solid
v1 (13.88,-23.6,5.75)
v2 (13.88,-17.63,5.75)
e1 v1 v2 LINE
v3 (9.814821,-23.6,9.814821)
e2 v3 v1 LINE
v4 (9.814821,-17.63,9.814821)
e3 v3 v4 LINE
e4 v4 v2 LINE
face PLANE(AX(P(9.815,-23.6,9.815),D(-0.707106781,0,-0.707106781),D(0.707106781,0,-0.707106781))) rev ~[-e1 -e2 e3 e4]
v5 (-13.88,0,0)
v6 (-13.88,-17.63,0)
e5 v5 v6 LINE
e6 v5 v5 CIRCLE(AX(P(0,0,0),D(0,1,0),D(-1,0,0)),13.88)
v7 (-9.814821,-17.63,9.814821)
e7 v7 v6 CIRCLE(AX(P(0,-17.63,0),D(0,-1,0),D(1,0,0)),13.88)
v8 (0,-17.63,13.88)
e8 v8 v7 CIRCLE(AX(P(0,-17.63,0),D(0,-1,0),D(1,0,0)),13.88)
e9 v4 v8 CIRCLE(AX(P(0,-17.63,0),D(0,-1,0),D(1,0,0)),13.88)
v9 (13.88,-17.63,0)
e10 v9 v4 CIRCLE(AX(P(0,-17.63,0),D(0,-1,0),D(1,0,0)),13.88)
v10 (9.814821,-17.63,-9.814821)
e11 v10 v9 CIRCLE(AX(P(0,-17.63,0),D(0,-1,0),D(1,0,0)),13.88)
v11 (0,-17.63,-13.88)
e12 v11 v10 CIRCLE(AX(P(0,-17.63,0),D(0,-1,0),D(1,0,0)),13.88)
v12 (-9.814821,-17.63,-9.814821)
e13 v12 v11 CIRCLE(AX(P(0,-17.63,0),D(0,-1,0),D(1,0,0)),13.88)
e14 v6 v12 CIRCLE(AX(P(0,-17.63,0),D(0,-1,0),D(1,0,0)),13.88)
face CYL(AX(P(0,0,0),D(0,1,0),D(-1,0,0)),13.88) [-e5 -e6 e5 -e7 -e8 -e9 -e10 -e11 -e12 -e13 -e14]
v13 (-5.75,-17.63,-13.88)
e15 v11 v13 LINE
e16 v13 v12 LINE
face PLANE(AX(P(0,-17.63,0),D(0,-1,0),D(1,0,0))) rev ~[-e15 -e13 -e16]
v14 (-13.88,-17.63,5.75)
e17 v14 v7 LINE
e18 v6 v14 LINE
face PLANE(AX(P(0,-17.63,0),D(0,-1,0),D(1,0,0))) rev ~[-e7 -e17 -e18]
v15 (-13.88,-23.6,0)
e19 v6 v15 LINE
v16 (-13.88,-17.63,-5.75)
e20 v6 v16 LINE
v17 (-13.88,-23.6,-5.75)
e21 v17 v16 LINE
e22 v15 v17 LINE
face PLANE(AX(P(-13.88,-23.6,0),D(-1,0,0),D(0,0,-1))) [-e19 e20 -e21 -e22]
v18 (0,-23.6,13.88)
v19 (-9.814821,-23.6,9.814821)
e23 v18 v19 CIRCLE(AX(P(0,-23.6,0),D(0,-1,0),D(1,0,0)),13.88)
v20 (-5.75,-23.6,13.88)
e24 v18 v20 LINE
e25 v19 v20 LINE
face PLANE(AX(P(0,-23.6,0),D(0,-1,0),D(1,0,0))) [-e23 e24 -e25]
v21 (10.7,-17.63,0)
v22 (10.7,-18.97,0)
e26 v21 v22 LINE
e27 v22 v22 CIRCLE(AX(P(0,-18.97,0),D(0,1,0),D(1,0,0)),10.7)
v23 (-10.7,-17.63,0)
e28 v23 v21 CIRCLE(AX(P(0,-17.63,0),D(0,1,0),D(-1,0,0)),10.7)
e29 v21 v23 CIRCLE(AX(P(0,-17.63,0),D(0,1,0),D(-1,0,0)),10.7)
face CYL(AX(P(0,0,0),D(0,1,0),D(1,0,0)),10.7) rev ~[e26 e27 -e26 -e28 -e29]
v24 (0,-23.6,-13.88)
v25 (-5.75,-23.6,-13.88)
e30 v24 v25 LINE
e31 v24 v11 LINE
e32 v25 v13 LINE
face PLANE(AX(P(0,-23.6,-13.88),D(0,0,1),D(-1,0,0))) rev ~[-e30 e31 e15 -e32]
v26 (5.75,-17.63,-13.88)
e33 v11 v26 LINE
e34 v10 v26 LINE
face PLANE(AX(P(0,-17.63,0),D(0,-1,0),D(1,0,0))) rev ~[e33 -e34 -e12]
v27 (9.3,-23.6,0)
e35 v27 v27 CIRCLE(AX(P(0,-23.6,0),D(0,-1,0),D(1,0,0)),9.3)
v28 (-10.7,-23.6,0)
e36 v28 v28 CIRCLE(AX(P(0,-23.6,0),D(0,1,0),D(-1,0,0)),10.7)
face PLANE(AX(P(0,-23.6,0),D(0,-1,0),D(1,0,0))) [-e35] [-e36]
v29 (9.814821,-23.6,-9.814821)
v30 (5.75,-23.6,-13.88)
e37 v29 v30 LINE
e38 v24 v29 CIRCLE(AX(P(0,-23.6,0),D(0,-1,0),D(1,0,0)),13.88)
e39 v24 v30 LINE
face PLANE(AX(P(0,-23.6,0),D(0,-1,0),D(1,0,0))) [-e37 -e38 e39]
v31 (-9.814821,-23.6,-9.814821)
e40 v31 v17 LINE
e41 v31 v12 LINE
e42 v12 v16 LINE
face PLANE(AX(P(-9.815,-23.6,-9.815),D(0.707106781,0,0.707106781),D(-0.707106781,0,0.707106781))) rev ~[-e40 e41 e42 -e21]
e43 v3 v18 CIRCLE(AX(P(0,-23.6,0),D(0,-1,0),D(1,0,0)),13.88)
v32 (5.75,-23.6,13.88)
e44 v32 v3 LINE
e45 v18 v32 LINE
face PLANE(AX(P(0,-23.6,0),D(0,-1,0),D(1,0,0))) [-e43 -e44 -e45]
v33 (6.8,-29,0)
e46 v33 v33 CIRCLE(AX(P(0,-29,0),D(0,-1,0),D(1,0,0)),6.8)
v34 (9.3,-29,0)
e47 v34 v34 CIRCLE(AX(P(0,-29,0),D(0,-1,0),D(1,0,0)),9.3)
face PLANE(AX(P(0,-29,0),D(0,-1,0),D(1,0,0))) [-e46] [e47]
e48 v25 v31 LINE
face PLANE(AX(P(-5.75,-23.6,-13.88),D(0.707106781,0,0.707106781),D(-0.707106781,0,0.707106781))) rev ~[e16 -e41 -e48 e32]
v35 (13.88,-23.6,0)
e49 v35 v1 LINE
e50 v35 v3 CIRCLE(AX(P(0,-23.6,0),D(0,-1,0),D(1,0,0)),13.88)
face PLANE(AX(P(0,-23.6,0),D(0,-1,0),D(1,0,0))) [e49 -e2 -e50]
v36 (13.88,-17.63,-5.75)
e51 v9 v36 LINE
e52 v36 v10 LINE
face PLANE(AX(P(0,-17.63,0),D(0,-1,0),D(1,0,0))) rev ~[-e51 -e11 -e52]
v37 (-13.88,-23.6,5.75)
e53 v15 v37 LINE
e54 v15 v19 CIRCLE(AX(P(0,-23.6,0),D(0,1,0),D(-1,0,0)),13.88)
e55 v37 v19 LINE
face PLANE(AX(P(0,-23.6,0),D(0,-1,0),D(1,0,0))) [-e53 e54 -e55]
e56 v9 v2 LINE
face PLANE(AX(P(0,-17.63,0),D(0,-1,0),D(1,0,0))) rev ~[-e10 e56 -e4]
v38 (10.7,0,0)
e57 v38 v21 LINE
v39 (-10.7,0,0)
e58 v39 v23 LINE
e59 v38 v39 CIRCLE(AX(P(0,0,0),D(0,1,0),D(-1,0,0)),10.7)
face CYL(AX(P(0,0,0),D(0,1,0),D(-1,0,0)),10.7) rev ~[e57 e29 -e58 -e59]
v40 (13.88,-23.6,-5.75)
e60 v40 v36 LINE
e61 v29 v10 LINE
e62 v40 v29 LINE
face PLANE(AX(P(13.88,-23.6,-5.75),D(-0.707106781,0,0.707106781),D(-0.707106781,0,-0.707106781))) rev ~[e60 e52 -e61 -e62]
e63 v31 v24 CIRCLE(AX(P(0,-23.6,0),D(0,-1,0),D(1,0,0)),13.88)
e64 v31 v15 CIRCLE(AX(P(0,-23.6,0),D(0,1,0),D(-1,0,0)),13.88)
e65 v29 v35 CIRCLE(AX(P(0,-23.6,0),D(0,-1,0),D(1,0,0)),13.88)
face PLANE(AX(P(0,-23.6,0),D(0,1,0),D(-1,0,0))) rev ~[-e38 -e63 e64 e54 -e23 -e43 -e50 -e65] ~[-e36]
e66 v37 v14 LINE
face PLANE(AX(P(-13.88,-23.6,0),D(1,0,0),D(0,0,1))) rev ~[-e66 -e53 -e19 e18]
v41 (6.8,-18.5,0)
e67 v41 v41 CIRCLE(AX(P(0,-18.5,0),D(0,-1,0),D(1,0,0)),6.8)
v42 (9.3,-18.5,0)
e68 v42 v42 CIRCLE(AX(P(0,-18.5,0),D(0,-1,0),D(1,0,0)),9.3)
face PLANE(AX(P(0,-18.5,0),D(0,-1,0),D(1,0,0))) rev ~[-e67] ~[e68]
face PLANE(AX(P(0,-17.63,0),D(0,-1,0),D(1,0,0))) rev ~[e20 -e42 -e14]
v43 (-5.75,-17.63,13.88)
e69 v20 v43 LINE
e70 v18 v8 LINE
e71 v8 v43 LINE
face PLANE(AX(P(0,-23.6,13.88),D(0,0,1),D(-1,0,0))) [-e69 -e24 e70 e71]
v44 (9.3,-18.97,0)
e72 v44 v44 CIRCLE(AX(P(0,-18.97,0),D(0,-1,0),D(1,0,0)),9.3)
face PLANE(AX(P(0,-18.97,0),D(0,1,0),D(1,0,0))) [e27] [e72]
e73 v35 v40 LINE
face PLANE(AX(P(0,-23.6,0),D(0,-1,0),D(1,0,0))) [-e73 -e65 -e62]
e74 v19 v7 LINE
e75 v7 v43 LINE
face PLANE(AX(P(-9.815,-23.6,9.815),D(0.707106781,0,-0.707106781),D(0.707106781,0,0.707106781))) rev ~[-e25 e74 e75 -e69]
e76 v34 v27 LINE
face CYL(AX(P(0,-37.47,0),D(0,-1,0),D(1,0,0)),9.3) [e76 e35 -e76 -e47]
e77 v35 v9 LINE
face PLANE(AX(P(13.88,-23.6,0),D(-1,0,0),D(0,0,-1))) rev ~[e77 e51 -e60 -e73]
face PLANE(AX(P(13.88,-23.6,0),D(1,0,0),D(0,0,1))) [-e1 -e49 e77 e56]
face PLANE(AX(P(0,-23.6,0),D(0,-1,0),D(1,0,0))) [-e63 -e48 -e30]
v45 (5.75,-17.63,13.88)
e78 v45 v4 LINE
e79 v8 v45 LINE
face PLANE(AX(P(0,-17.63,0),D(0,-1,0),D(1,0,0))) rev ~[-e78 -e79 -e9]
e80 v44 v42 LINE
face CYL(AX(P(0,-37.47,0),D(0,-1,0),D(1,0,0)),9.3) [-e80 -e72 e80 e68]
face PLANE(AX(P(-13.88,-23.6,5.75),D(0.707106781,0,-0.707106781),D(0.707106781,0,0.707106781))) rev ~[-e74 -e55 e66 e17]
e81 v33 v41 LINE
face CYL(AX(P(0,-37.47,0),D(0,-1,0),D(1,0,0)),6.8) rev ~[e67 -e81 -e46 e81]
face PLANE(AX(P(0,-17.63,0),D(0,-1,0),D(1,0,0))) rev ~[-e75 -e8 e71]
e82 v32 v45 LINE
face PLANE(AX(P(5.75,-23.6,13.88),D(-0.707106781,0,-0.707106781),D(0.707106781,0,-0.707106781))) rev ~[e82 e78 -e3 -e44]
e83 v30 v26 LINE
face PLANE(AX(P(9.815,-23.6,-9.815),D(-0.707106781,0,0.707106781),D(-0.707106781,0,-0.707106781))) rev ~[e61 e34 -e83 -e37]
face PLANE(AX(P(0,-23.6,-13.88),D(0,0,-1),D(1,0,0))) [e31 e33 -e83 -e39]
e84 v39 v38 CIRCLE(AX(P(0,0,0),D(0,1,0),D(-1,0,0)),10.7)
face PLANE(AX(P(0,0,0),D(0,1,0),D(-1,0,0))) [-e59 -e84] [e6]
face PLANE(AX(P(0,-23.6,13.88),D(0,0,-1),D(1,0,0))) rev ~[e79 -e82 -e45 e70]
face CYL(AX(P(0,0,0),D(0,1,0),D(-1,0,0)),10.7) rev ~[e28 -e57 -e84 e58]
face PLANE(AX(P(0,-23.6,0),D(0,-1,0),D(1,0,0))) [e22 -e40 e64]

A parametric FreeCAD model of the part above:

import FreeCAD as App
import Part
import Sketcher
from FreeCAD import Vector
Q = App.Units.Quantity

doc = App.newDocument("Part")
params = doc.addObject("Spreadsheet::Sheet", "Params")
for row, (alias, value) in enumerate([
    ("sketch1_diameter", "21.4 mm"),
    ("sketch1_diameter2", "27.76 mm"),
    ("pad1_length", "23.6 mm"),
    ("pad2_length", "5.97 mm"),
    ("sketch3_diameter", "13.6 mm"),
    ("pad3_length", "18.97 mm"),
    ("sketch4_diameter", "21.4 mm"),
    ("pocket1_length", "18.97 mm"),
    ("sketch5_diameter", "18.6 mm"),
    ("sketch5_diameter2", "13.4 mm"),
    ("pad4_length", "18.97 mm"),
    ("sketch6_diameter", "13.6 mm"),
    ("pocket2_length", "18.97 mm"),
    ("sketch7_diameter", "18.6 mm"),
    ("pocket3_length", "8.47 mm"),
], start=1):
    params.set(f"A{row}", alias)
    params.set(f"B{row}", "=" + value)
    params.setAlias(f"B{row}", alias)

body = doc.addObject("PartDesign::Body", "Body")

sketch1 = doc.addObject("Sketcher::SketchObject", "Sketch")
body.addObject(sketch1)
sketch1.AttachmentSupport = (doc.XZ_Plane, [""])
sketch1.MapMode = "FlatFace"
sketch1.addGeometry(Part.Circle(Vector(0, 0, 0), Vector(0, 0, 1), 14), False)
sketch1.addGeometry(Part.Circle(Vector(0, 0, 0), Vector(0, 0, 1), 11), False)
sketch1.addConstraint(Sketcher.Constraint("Coincident", 0, 3, -1, 1))
sketch1.addConstraint(Sketcher.Constraint("Coincident", 1, 3, -1, 1))
sketch1.addConstraint(Sketcher.Constraint("Diameter", 1, Q("21.4 mm")))
sketch1.addConstraint(Sketcher.Constraint("Diameter", 0, Q("27.76 mm")))
sketch1.setExpression("Constraints[2]", "Params.sketch1_diameter")
sketch1.setExpression("Constraints[3]", "Params.sketch1_diameter2")
pad1 = doc.addObject("PartDesign::Pad", "Pad")
body.addObject(pad1)
pad1.Profile = sketch1
pad1.setExpression("Length", "Params.pad1_length")

sketch2 = doc.addObject("Sketcher::SketchObject", "Sketch001")
body.addObject(sketch2)
sketch2.AttachmentSupport = (doc.XZ_Plane, [""])
sketch2.MapMode = "FlatFace"
sketch2.AttachmentOffset = App.Placement(Vector(0, 0, 23.6), App.Rotation())
sketch2.addGeometry(Part.LineSegment(Vector(14, -6, 0), Vector(14, 6, 0)), False)
sketch2.addGeometry(Part.LineSegment(Vector(14, 6, 0), Vector(6, 14, 0)), False)
sketch2.addGeometry(Part.LineSegment(Vector(6, 14, 0), Vector(-6, 14, 0)), False)
sketch2.addGeometry(Part.LineSegment(Vector(-6, 14, 0), Vector(-14, 6, 0)), False)
sketch2.addGeometry(Part.LineSegment(Vector(-14, 6, 0), Vector(-14, -6, 0)), False)
sketch2.addGeometry(Part.LineSegment(Vector(-14, -6, 0), Vector(-6, -14, 0)), False)
sketch2.addGeometry(Part.LineSegment(Vector(-6, -14, 0), Vector(6, -14, 0)), False)
sketch2.addGeometry(Part.LineSegment(Vector(6, -14, 0), Vector(14, -6, 0)), False)
sketch2.addConstraint(Sketcher.Constraint("Coincident", 0, 2, 1, 1))
sketch2.addConstraint(Sketcher.Constraint("Coincident", 1, 2, 2, 1))
sketch2.addConstraint(Sketcher.Constraint("Coincident", 2, 2, 3, 1))
sketch2.addConstraint(Sketcher.Constraint("Coincident", 3, 2, 4, 1))
sketch2.addConstraint(Sketcher.Constraint("Coincident", 4, 2, 5, 1))
sketch2.addConstraint(Sketcher.Constraint("Coincident", 5, 2, 6, 1))
sketch2.addConstraint(Sketcher.Constraint("Coincident", 6, 2, 7, 1))
sketch2.addConstraint(Sketcher.Constraint("Coincident", 7, 2, 0, 1))
sketch2.addConstraint(Sketcher.Constraint("Vertical", 0))
sketch2.addConstraint(Sketcher.Constraint("Horizontal", 2))
sketch2.addConstraint(Sketcher.Constraint("Vertical", 4))
sketch2.addConstraint(Sketcher.Constraint("Horizontal", 6))
sketch2.addConstraint(Sketcher.Constraint("Symmetric", 0, 2, 4, 2, -1, 1))
sketch2.addConstraint(Sketcher.Constraint("Symmetric", 1, 2, 5, 2, -1, 1))
sketch2.addConstraint(Sketcher.Constraint("Perpendicular", 1, 3))
sketch2.addConstraint(Sketcher.Constraint("Perpendicular", 5, 7))
sketch2.addConstraint(Sketcher.Constraint("Horizontal", 0, 2, 3, 2))
sketch2.addConstraint(Sketcher.Constraint("Horizontal", 4, 2, 7, 2))
sketch2.addConstraint(Sketcher.Constraint("Vertical", 2, 2, 5, 2))
sketch2.addConstraint(Sketcher.Constraint("Equal", 6, 0))
sketch2.addConstraint(Sketcher.Constraint("DistanceY", -1, 1, 0, 2, Q("5.75 mm")))
sketch2.addConstraint(Sketcher.Constraint("DistanceX", -1, 1, 0, 2, Q("13.88 mm")))
pad2 = doc.addObject("PartDesign::Pad", "Pad001")
body.addObject(pad2)
pad2.Profile = sketch2
pad2.setExpression("Length", "Params.pad2_length")
pad2.Reversed = True

sketch3 = doc.addObject("Sketcher::SketchObject", "Sketch002")
body.addObject(sketch3)
sketch3.AttachmentSupport = (doc.XZ_Plane, [""])
sketch3.MapMode = "FlatFace"
sketch3.AttachmentOffset = App.Placement(Vector(0, 0, 18.5), App.Rotation())
sketch3.addGeometry(Part.Circle(Vector(0, 0, 0), Vector(0, 0, 1), 7), False)
sketch3.addConstraint(Sketcher.Constraint("Coincident", 0, 3, -1, 1))
sketch3.addConstraint(Sketcher.Constraint("Diameter", 0, Q("13.6 mm")))
sketch3.setExpression("Constraints[1]", "Params.sketch3_diameter")
pad3 = doc.addObject("PartDesign::Pad", "Pad002")
body.addObject(pad3)
pad3.Profile = sketch3
pad3.setExpression("Length", "Params.pad3_length")

sketch4 = doc.addObject("Sketcher::SketchObject", "Sketch003")
body.addObject(sketch4)
sketch4.AttachmentSupport = (doc.XZ_Plane, [""])
sketch4.MapMode = "FlatFace"
sketch4.addGeometry(Part.Circle(Vector(0, 0, 0), Vector(0, 0, 1), 11), False)
sketch4.addConstraint(Sketcher.Constraint("Coincident", 0, 3, -1, 1))
sketch4.addConstraint(Sketcher.Constraint("Diameter", 0, Q("21.4 mm")))
sketch4.setExpression("Constraints[1]", "Params.sketch4_diameter")
pocket1 = doc.addObject("PartDesign::Pocket", "Pocket")
body.addObject(pocket1)
pocket1.Profile = sketch4
pocket1.setExpression("Length", "Params.pocket1_length")
pocket1.Reversed = True

sketch5 = doc.addObject("Sketcher::SketchObject", "Sketch004")
body.addObject(sketch5)
sketch5.AttachmentSupport = (doc.XZ_Plane, [""])
sketch5.MapMode = "FlatFace"
sketch5.AttachmentOffset = App.Placement(Vector(0, 0, 37.47), App.Rotation())
sketch5.addGeometry(Part.Circle(Vector(0, 0, 0), Vector(0, 0, 1), 9), False)
sketch5.addGeometry(Part.Circle(Vector(0, 0, 0), Vector(0, 0, 1), 7), False)
sketch5.addConstraint(Sketcher.Constraint("Coincident", 0, 3, -1, 1))
sketch5.addConstraint(Sketcher.Constraint("Coincident", 1, 3, -1, 1))
sketch5.addConstraint(Sketcher.Constraint("Diameter", 0, Q("18.6 mm")))
sketch5.addConstraint(Sketcher.Constraint("Diameter", 1, Q("13.4 mm")))
sketch5.setExpression("Constraints[2]", "Params.sketch5_diameter")
sketch5.setExpression("Constraints[3]", "Params.sketch5_diameter2")
pad4 = doc.addObject("PartDesign::Pad", "Pad003")
body.addObject(pad4)
pad4.Profile = sketch5
pad4.setExpression("Length", "Params.pad4_length")
pad4.Reversed = True

sketch6 = doc.addObject("Sketcher::SketchObject", "Sketch005")
body.addObject(sketch6)
sketch6.AttachmentSupport = (doc.XZ_Plane, [""])
sketch6.MapMode = "FlatFace"
sketch6.AttachmentOffset = App.Placement(Vector(0, 0, 37.47), App.Rotation())
sketch6.addGeometry(Part.Circle(Vector(0, 0, 0), Vector(0, 0, 1), 7), False)
sketch6.addConstraint(Sketcher.Constraint("Coincident", 0, 3, -1, 1))
sketch6.addConstraint(Sketcher.Constraint("Diameter", 0, Q("13.6 mm")))
sketch6.setExpression("Constraints[1]", "Params.sketch6_diameter")
pocket2 = doc.addObject("PartDesign::Pocket", "Pocket001")
body.addObject(pocket2)
pocket2.Profile = sketch6
pocket2.setExpression("Length", "Params.pocket2_length")

sketch7 = doc.addObject("Sketcher::SketchObject", "Sketch006")
body.addObject(sketch7)
sketch7.AttachmentSupport = (doc.XZ_Plane, [""])
sketch7.MapMode = "FlatFace"
sketch7.AttachmentOffset = App.Placement(Vector(0, 0, 37.47), App.Rotation())
sketch7.addGeometry(Part.Circle(Vector(0, 0, 0), Vector(0, 0, 1), 9), False)
sketch7.addConstraint(Sketcher.Constraint("Coincident", 0, 3, -1, 1))
sketch7.addConstraint(Sketcher.Constraint("Diameter", 0, Q("18.6 mm")))
sketch7.setExpression("Constraints[1]", "Params.sketch7_diameter")
pocket3 = doc.addObject("PartDesign::Pocket", "Pocket002")
body.addObject(pocket3)
pocket3.Profile = sketch7
pocket3.setExpression("Length", "Params.pocket3_length")

doc.recompute()
